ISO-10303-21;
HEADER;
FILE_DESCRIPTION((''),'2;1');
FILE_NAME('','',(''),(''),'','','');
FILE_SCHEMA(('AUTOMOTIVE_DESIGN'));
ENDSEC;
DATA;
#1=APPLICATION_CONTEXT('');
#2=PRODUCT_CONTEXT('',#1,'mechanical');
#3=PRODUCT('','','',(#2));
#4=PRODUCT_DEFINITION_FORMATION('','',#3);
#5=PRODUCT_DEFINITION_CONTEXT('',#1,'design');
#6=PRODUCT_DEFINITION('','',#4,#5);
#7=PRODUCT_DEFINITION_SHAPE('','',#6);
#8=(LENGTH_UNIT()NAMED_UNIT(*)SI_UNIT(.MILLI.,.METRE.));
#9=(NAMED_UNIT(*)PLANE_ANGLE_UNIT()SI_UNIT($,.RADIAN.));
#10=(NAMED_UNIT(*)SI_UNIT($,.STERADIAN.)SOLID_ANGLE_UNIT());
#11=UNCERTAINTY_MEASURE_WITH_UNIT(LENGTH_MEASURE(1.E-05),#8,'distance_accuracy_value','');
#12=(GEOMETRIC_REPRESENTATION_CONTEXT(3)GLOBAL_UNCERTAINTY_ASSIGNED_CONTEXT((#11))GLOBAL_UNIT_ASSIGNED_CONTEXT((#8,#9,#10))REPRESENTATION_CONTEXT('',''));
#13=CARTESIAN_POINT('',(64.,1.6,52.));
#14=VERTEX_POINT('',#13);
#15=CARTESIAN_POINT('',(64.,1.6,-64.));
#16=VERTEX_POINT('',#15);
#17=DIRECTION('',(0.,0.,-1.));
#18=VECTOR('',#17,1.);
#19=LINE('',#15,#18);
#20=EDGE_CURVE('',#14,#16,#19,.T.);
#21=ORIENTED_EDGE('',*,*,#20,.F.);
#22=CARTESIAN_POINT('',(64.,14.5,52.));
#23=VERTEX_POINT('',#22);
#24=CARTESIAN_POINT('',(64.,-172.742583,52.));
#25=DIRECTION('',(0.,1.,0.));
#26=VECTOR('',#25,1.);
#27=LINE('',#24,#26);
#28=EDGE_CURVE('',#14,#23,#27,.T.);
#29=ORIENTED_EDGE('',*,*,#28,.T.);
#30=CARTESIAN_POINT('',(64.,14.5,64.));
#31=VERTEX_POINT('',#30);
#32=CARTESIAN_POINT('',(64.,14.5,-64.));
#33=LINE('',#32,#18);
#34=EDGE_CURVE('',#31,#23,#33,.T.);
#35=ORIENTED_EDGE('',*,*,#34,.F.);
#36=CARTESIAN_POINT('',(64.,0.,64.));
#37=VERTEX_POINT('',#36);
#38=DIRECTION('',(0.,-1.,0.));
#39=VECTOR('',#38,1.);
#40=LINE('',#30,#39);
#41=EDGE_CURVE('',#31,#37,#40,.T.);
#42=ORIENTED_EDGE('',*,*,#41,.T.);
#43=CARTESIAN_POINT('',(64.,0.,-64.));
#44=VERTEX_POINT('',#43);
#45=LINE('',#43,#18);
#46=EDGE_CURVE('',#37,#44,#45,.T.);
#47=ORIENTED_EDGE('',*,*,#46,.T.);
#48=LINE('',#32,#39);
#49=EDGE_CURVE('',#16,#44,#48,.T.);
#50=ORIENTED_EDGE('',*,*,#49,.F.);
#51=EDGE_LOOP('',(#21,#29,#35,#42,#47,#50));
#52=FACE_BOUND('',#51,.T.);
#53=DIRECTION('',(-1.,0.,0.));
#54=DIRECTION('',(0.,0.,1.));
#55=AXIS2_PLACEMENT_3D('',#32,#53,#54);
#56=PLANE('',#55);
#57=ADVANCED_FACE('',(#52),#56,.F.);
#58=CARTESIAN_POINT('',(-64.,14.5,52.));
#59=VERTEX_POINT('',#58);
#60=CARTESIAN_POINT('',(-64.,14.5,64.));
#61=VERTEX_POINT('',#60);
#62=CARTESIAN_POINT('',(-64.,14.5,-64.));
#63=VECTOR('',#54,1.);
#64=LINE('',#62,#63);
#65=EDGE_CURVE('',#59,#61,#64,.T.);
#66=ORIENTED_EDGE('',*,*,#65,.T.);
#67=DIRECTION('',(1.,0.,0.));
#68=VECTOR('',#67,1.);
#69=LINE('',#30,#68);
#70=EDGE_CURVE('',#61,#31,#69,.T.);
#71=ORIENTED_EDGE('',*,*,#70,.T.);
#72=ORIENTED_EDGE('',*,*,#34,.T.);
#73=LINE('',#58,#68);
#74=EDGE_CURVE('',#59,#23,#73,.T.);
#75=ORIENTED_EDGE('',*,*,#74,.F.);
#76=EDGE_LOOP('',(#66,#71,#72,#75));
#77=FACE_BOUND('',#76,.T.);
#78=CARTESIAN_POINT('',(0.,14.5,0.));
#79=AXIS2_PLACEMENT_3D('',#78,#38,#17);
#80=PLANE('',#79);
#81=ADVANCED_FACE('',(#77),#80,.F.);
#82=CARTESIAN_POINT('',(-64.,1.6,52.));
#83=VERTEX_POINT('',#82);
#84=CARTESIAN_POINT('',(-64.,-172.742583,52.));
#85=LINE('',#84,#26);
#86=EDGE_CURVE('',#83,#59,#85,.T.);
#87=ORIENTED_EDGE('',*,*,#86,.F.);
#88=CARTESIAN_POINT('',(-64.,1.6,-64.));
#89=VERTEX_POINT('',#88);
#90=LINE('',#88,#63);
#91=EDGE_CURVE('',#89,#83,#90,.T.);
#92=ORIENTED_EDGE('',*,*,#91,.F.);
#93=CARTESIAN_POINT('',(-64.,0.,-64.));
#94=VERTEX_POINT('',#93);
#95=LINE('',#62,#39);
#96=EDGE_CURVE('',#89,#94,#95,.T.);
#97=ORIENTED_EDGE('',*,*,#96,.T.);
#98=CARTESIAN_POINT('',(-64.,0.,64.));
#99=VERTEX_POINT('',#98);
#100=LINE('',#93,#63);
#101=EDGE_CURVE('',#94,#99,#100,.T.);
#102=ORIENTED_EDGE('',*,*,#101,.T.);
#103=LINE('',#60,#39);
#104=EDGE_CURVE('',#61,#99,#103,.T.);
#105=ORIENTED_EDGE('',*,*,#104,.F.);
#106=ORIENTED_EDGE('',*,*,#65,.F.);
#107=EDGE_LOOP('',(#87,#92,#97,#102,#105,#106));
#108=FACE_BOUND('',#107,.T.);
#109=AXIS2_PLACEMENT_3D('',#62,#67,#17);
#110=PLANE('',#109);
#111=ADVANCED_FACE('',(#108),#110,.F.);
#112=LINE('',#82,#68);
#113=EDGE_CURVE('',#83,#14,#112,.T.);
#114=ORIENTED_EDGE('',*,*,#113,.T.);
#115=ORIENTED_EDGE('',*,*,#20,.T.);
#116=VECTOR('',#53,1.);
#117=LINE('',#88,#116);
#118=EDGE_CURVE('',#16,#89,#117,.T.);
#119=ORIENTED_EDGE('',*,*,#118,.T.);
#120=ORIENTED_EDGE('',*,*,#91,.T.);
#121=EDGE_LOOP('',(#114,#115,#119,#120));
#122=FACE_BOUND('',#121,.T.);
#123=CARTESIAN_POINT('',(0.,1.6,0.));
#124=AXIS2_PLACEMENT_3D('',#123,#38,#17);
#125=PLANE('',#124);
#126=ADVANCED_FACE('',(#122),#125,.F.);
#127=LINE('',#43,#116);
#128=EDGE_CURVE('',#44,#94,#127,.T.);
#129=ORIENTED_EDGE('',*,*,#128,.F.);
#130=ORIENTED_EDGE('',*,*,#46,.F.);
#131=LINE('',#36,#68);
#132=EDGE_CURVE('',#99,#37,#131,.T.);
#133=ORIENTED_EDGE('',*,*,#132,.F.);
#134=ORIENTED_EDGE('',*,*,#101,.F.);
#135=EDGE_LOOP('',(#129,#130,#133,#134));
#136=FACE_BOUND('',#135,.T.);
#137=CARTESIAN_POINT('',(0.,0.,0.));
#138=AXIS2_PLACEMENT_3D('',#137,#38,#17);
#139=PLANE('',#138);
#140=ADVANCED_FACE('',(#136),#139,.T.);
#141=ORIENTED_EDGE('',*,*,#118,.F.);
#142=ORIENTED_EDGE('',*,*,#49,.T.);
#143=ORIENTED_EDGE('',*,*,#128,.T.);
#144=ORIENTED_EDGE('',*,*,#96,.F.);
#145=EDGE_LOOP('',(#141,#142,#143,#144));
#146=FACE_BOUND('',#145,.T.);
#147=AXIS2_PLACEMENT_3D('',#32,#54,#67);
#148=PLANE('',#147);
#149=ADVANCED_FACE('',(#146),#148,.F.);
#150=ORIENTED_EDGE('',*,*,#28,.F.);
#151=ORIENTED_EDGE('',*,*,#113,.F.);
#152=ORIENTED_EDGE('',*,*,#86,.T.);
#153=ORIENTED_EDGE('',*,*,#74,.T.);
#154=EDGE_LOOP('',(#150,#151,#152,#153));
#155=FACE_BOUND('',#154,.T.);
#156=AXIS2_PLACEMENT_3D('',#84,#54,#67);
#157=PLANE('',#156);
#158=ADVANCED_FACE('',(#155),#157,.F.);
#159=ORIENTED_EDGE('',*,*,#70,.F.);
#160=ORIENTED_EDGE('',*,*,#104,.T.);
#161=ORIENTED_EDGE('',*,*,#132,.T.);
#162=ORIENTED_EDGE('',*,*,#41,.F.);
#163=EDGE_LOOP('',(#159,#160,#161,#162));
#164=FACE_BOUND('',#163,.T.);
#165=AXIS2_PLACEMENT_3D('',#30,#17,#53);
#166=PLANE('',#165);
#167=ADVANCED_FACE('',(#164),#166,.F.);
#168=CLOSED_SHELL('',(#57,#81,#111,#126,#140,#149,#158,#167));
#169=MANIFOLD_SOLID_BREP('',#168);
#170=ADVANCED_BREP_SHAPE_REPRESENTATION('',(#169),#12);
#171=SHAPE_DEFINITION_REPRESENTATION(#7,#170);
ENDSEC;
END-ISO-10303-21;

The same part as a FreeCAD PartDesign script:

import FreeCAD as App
import Part
import Sketcher

V = App.Vector


def add_polygon(sketch, points):
    """Adds a closed chain of lines whose ends are joined by coincident constraints."""
    first, n = sketch.GeometryCount, len(points)
    for a, b in zip(points, points[1:] + points[:1]):
        sketch.addGeometry(Part.LineSegment(App.Vector(*a, 0), App.Vector(*b, 0)), False)
    for i in range(n):
        sketch.addConstraint(Sketcher.Constraint("Coincident", first + i, 2, first + (i + 1) % n, 1))

doc = App.newDocument("Part")
body = doc.addObject("PartDesign::Body", "Body")

sketch1 = body.newObject("Sketcher::SketchObject", "Sketch")
sketch1.AttachmentSupport = (doc.getObject("XZ_Plane"), [""])
sketch1.MapMode = "FlatFace"
add_polygon(sketch1, [(-64, -64), (-64, 64), (64, 64), (64, -64)])
sketch1.addConstraint([
    Sketcher.Constraint("Vertical", 0),
    Sketcher.Constraint("Horizontal", 1),
    Sketcher.Constraint("Vertical", 2),
    Sketcher.Constraint("Horizontal", 3),
    Sketcher.Constraint("Symmetric", 0, 2, 2, 2, -1, 1),
    Sketcher.Constraint("Equal", 3, 0),
    Sketcher.Constraint("DistanceX", 1, 1, 1, 2, 128.0),
])
pad1 = body.newObject("PartDesign::Pad", "Pad")
pad1.Profile = sketch1
pad1.Length = 14.5
pad1.Reversed = True

sketch2 = body.newObject("Sketcher::SketchObject", "Sketch001")
sketch2.AttachmentSupport = (doc.getObject("XZ_Plane"), [""])
sketch2.MapMode = "FlatFace"
sketch2.AttachmentOffset = App.Placement(V(0, 0, -14.5), App.Rotation())
add_polygon(sketch2, [(-64, -64), (-64, 52), (64, 52), (64, -64)])
sketch2.addConstraint([
    Sketcher.Constraint("Vertical", 0),
    Sketcher.Constraint("Horizontal", 1),
    Sketcher.Constraint("Vertical", 2),
    Sketcher.Constraint("Horizontal", 3),
    Sketcher.Constraint("DistanceX", 1, 1, 1, 2, 128.0),
    Sketcher.Constraint("DistanceY", 0, 1, 0, 2, 116.0),
    Sketcher.Constraint("DistanceX", 0, 2, -1, 1, 64.0),
    Sketcher.Constraint("DistanceY", -1, 1, 0, 2, 52.0),
])
pocket1 = body.newObject("PartDesign::Pocket", "Pocket")
pocket1.Profile = sketch2
pocket1.Length = 12.9
pocket1.Reversed = True

doc.recompute()
